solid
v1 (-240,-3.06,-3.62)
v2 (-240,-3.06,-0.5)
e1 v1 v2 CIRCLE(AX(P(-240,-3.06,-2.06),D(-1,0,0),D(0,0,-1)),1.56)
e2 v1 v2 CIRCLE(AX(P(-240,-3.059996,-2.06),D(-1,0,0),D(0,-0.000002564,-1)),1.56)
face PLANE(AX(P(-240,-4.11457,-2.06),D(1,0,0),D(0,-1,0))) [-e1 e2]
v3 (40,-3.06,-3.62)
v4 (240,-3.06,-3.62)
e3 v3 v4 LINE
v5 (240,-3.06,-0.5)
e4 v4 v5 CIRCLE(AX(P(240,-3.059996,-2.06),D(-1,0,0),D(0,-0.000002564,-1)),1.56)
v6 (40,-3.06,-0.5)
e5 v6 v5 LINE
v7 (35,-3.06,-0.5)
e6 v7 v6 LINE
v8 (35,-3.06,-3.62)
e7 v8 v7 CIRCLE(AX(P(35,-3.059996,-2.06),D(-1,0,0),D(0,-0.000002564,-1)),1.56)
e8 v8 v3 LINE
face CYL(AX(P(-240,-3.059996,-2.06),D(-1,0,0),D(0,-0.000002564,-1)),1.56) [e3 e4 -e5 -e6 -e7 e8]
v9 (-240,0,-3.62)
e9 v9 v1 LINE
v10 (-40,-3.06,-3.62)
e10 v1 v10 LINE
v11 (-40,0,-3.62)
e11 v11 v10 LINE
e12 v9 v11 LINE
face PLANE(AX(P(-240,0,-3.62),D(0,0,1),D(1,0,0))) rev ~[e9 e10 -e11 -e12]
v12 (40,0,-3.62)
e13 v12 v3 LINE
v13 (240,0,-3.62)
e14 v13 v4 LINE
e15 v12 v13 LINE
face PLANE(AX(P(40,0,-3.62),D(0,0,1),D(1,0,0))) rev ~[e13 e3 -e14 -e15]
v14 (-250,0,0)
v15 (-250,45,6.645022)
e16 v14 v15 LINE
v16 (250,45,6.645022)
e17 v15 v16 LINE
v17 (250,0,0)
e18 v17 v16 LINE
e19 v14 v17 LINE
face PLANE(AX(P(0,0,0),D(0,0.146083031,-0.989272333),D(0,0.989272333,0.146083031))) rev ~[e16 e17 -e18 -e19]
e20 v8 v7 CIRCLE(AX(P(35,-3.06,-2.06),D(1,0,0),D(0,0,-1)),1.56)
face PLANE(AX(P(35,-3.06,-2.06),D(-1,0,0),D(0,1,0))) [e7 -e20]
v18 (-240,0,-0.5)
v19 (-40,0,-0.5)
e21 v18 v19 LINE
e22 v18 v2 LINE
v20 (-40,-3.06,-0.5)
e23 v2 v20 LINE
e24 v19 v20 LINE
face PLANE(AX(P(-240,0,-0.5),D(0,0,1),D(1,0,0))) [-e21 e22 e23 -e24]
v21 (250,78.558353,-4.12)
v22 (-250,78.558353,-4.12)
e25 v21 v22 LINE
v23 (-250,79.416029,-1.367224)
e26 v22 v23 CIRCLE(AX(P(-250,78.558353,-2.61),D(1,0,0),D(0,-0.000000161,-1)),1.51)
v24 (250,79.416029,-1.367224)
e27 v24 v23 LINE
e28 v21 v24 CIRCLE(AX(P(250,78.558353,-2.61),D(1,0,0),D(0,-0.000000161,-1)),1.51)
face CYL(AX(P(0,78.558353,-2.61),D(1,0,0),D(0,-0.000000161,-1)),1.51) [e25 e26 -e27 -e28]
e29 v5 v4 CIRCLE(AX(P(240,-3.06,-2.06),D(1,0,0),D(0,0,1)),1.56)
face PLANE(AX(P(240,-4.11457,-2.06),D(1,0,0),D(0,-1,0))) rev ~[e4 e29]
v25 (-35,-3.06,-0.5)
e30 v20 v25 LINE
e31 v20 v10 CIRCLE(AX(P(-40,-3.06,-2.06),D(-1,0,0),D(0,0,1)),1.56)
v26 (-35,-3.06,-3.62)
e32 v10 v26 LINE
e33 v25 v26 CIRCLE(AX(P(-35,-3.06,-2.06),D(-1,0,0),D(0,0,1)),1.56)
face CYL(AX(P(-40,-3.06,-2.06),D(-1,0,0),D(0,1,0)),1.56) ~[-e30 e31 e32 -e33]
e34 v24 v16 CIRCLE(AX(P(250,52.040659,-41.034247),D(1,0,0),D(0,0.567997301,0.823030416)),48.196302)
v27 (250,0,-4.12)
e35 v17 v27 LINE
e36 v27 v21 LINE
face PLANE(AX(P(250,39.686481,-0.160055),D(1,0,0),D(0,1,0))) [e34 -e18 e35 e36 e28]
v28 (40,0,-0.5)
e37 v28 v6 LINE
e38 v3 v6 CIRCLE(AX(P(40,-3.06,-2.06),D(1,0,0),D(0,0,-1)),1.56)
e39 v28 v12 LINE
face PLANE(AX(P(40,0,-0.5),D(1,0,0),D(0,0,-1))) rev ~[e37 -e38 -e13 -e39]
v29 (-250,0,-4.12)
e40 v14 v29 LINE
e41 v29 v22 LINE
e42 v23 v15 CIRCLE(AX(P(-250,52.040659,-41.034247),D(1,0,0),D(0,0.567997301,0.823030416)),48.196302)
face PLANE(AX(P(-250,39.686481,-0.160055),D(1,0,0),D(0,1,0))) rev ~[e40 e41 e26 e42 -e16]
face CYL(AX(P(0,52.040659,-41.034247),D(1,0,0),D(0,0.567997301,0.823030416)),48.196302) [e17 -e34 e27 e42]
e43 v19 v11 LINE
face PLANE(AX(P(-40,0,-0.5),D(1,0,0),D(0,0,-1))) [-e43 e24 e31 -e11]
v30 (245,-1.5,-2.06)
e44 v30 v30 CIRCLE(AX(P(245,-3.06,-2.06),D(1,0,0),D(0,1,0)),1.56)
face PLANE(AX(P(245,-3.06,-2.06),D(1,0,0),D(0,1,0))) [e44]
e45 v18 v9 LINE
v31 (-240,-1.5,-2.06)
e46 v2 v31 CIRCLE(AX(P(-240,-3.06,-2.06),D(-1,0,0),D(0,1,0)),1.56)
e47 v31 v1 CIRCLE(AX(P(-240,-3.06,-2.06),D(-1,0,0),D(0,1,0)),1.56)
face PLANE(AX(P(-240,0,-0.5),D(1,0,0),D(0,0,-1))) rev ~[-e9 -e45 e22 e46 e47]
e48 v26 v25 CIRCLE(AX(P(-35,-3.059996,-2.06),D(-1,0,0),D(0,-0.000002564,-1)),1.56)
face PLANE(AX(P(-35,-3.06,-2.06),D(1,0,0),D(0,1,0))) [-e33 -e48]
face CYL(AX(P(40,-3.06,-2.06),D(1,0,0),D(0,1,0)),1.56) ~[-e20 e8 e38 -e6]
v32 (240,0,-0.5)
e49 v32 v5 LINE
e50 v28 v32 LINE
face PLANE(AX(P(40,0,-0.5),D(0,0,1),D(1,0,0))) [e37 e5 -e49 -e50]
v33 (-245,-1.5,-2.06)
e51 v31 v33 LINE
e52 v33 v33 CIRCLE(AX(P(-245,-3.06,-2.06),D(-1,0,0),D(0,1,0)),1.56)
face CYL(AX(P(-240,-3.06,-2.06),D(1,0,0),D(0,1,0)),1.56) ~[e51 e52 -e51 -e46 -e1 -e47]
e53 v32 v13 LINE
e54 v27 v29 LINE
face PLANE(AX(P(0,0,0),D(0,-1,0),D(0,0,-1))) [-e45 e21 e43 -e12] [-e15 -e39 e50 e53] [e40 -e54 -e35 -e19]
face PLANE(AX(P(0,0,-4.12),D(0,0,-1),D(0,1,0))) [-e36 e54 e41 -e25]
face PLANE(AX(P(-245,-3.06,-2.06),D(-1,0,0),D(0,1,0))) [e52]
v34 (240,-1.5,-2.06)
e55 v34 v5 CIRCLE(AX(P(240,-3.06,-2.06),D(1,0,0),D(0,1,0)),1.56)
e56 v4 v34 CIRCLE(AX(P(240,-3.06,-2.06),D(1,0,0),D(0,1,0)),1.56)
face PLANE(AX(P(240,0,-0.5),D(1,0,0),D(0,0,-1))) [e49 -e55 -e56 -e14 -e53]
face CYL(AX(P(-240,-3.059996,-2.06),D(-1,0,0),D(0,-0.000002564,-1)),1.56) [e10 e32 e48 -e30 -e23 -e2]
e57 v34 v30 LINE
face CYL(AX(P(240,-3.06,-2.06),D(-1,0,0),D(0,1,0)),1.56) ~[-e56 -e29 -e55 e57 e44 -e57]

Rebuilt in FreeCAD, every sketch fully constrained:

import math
import FreeCAD as App
import Part
import Sketcher

V = App.Vector
Q = App.Units.Quantity

doc = App.newDocument("Part")
body = doc.addObject("PartDesign::Body", "Body")

sketch1 = body.newObject("Sketcher::SketchObject", "Sketch")
sketch1.AttachmentSupport = (doc.getObject("YZ_Plane"), [""])
sketch1.MapMode = "FlatFace"
sketch1.addGeometry([
    Part.ArcOfCircle(Part.Circle(V(52, -41, 0), V(0, 0, 1), 48.2), math.radians(55), math.radians(98)),
    Part.LineSegment(V(45, 6.6, 0), V(0, 0, 0)),
    Part.LineSegment(V(0, 0, 0), V(0, -4.1, 0)),
    Part.LineSegment(V(0, -4.1, 0), V(78.6, -4.1, 0)),
    Part.ArcOfCircle(Part.Circle(V(78.6, -2.6, 0), V(0, 0, 1), 1.5), math.radians(-90), math.radians(55)),
], False)
sketch1.addConstraint([
    Sketcher.Constraint("Tangent", 0, 2, 1, 1),
    Sketcher.Constraint("Coincident", 1, 2, 2, 1),
    Sketcher.Constraint("Coincident", 2, 2, 3, 1),
    Sketcher.Constraint("Tangent", 3, 2, 4, 1),
    Sketcher.Constraint("Tangent", 4, 2, 0, 1),
    Sketcher.Constraint("Vertical", 2),
    Sketcher.Constraint("Horizontal", 3),
    Sketcher.Constraint("Coincident", 1, 2, -1, 1),
    Sketcher.Constraint("Radius", 4, 1.51),
    Sketcher.Constraint("DistanceX", -1, 1, 0, 2, 45.0),
    Sketcher.Constraint("Angle", 1, Q("-171.6 deg")),
    Sketcher.Constraint("DistanceY", 2, 2, 2, 1, 4.12),
    Sketcher.Constraint("Radius", 0, 48.196302),
])
pad1 = body.newObject("PartDesign::Pad", "Pad")
pad1.Profile = sketch1
pad1.Length = 500
pad1.Midplane = True

sketch2 = body.newObject("Sketcher::SketchObject", "Sketch001")
sketch2.AttachmentSupport = (doc.getObject("XZ_Plane"), [""])
sketch2.MapMode = "FlatFace"
sketch2.addGeometry([
    Part.LineSegment(V(240, -0.5, 0), V(40, -0.5, 0)),
    Part.LineSegment(V(40, -0.5, 0), V(40, -3.6, 0)),
    Part.LineSegment(V(40, -3.6, 0), V(240, -3.6, 0)),
    Part.LineSegment(V(240, -3.6, 0), V(240, -0.5, 0)),
    Part.LineSegment(V(-40, -0.5, 0), V(-240, -0.5, 0)),
    Part.LineSegment(V(-240, -0.5, 0), V(-240, -3.6, 0)),
    Part.LineSegment(V(-240, -3.6, 0), V(-40, -3.6, 0)),
    Part.LineSegment(V(-40, -3.6, 0), V(-40, -0.5, 0)),
], False)
sketch2.addConstraint([
    Sketcher.Constraint("Coincident", 0, 2, 1, 1),
    Sketcher.Constraint("Coincident", 1, 2, 2, 1),
    Sketcher.Constraint("Coincident", 2, 2, 3, 1),
    Sketcher.Constraint("Coincident", 3, 2, 0, 1),
    Sketcher.Constraint("Coincident", 4, 2, 5, 1),
    Sketcher.Constraint("Coincident", 5, 2, 6, 1),
    Sketcher.Constraint("Coincident", 6, 2, 7, 1),
    Sketcher.Constraint("Coincident", 7, 2, 4, 1),
    Sketcher.Constraint("Horizontal", 0),
    Sketcher.Constraint("Vertical", 1),
    Sketcher.Constraint("Horizontal", 2),
    Sketcher.Constraint("Vertical", 3),
    Sketcher.Constraint("Horizontal", 4),
    Sketcher.Constraint("Vertical", 5),
    Sketcher.Constraint("Horizontal", 6),
    Sketcher.Constraint("Vertical", 7),
    Sketcher.Constraint("Symmetric", 3, 2, 4, 2, -2),
    Sketcher.Constraint("Symmetric", 1, 2, 6, 2, -2),
    Sketcher.Constraint("DistanceX", 0, 2, 0, 1, 200.0),
    Sketcher.Constraint("DistanceX", -1, 1, 0, 2, 40.0),
    Sketcher.Constraint("DistanceY", 1, 2, 1, 1, 3.12),
    Sketcher.Constraint("DistanceY", 0, 2, -1, 1, 0.5),
])
pad2 = body.newObject("PartDesign::Pad", "Pad001")
pad2.Profile = sketch2
pad2.Length = 4.62

sketch3 = body.newObject("Sketcher::SketchObject", "Sketch002")
sketch3.AttachmentSupport = (doc.getObject("YZ_Plane"), [""])
sketch3.MapMode = "FlatFace"
sketch3.AttachmentOffset = App.Placement(V(0, 0, 240), App.Rotation())
sketch3.addGeometry(Part.Circle(V(-3.1, -2.1, 0), V(0, 0, 1), 1.6), False)
sketch3.addConstraint([
    Sketcher.Constraint("Diameter", 0, 3.12),
    Sketcher.Constraint("DistanceX", 0, 3, -1, 1, 3.06),
    Sketcher.Constraint("DistanceY", 0, 3, -1, 1, 2.06),
])
pad3 = body.newObject("PartDesign::Pad", "Pad002")
pad3.Profile = sketch3
pad3.Length = 5

sketch4 = body.newObject("Sketcher::SketchObject", "Sketch003")
sketch4.AttachmentSupport = (doc.getObject("YZ_Plane"), [""])
sketch4.MapMode = "FlatFace"
sketch4.AttachmentOffset = App.Placement(V(0, 0, 40), App.Rotation())
sketch4.addGeometry(Part.Circle(V(-3.1, -2.1, 0), V(0, 0, 1), 1.6), False)
sketch4.addConstraint([
    Sketcher.Constraint("Diameter", 0, 3.12),
    Sketcher.Constraint("DistanceX", 0, 3, -1, 1, 3.06),
    Sketcher.Constraint("DistanceY", 0, 3, -1, 1, 2.06),
])
pad4 = body.newObject("PartDesign::Pad", "Pad003")
pad4.Profile = sketch4
pad4.Length = 5
pad4.Reversed = True

sketch5 = body.newObject("Sketcher::SketchObject", "Sketch004")
sketch5.AttachmentSupport = (doc.getObject("YZ_Plane"), [""])
sketch5.MapMode = "FlatFace"
sketch5.AttachmentOffset = App.Placement(V(0, 0, -40), App.Rotation())
sketch5.addGeometry(Part.Circle(V(-3.1, -2.1, 0), V(0, 0, 1), 1.6), False)
sketch5.addConstraint([
    Sketcher.Constraint("Diameter", 0, 3.12),
    Sketcher.Constraint("DistanceX", 0, 3, -1, 1, 3.06),
    Sketcher.Constraint("DistanceY", 0, 3, -1, 1, 2.06),
])
pad5 = body.newObject("PartDesign::Pad", "Pad004")
pad5.Profile = sketch5
pad5.Length = 5

sketch6 = body.newObject("Sketcher::SketchObject", "Sketch005")
sketch6.AttachmentSupport = (doc.getObject("YZ_Plane"), [""])
sketch6.MapMode = "FlatFace"
sketch6.AttachmentOffset = App.Placement(V(0, 0, -240), App.Rotation())
sketch6.addGeometry(Part.Circle(V(-3.1, -2.1, 0), V(0, 0, 1), 1.6), False)
sketch6.addConstraint([
    Sketcher.Constraint("Diameter", 0, 3.12),
    Sketcher.Constraint("DistanceX", 0, 3, -1, 1, 3.06),
    Sketcher.Constraint("DistanceY", 0, 3, -1, 1, 2.06),
])
pad6 = body.newObject("PartDesign::Pad", "Pad005")
pad6.Profile = sketch6
pad6.Length = 5
pad6.Reversed = True

sketch7 = body.newObject("Sketcher::SketchObject", "Sketch006")
sketch7.AttachmentSupport = (doc.getObject("YZ_Plane"), [""])
sketch7.MapMode = "FlatFace"
sketch7.AttachmentOffset = App.Placement(V(0, 0, -240), App.Rotation())
sketch7.addGeometry([
    Part.ArcOfCircle(Part.Circle(V(-3.1, -2.1, 0), V(0, 0, 1), 1.6), math.radians(90), math.radians(270)),
    Part.LineSegment(V(-3.1, -3.6, 0), V(-4.6, -3.6, 0)),
    Part.LineSegment(V(-4.6, -3.6, 0), V(-4.6, -0.5, 0)),
    Part.LineSegment(V(-4.6, -0.5, 0), V(-3.1, -0.5, 0)),
], False)
sketch7.addConstraint([
    Sketcher.Constraint("Coincident", 0, 2, 1, 1),
    Sketcher.Constraint("Coincident", 1, 2, 2, 1),
    Sketcher.Constraint("Coincident", 2, 2, 3, 1),
    Sketcher.Constraint("Coincident", 3, 2, 0, 1),
    Sketcher.Constraint("Horizontal", 1),
    Sketcher.Constraint("Vertical", 2),
    Sketcher.Constraint("Horizontal", 3),
    Sketcher.Constraint("Vertical", 0, 2, 3, 2),
    Sketcher.Constraint("Radius", 0, 1.56),
    Sketcher.Constraint("DistanceX", 1, 2, 1, 1, 1.56),
    Sketcher.Constraint("DistanceY", 2, 2, -1, 1, 0.5),
    Sketcher.Constraint("DistanceX", 0, 2, -1, 1, 3.06),
    Sketcher.Constraint("DistanceX", 0, 3, -1, 1, 3.059996),
])
pocket1 = body.newObject("PartDesign::Pocket", "Pocket")
pocket1.Profile = sketch7
pocket1.Length = 480
pocket1.Reversed = True

doc.recompute()
